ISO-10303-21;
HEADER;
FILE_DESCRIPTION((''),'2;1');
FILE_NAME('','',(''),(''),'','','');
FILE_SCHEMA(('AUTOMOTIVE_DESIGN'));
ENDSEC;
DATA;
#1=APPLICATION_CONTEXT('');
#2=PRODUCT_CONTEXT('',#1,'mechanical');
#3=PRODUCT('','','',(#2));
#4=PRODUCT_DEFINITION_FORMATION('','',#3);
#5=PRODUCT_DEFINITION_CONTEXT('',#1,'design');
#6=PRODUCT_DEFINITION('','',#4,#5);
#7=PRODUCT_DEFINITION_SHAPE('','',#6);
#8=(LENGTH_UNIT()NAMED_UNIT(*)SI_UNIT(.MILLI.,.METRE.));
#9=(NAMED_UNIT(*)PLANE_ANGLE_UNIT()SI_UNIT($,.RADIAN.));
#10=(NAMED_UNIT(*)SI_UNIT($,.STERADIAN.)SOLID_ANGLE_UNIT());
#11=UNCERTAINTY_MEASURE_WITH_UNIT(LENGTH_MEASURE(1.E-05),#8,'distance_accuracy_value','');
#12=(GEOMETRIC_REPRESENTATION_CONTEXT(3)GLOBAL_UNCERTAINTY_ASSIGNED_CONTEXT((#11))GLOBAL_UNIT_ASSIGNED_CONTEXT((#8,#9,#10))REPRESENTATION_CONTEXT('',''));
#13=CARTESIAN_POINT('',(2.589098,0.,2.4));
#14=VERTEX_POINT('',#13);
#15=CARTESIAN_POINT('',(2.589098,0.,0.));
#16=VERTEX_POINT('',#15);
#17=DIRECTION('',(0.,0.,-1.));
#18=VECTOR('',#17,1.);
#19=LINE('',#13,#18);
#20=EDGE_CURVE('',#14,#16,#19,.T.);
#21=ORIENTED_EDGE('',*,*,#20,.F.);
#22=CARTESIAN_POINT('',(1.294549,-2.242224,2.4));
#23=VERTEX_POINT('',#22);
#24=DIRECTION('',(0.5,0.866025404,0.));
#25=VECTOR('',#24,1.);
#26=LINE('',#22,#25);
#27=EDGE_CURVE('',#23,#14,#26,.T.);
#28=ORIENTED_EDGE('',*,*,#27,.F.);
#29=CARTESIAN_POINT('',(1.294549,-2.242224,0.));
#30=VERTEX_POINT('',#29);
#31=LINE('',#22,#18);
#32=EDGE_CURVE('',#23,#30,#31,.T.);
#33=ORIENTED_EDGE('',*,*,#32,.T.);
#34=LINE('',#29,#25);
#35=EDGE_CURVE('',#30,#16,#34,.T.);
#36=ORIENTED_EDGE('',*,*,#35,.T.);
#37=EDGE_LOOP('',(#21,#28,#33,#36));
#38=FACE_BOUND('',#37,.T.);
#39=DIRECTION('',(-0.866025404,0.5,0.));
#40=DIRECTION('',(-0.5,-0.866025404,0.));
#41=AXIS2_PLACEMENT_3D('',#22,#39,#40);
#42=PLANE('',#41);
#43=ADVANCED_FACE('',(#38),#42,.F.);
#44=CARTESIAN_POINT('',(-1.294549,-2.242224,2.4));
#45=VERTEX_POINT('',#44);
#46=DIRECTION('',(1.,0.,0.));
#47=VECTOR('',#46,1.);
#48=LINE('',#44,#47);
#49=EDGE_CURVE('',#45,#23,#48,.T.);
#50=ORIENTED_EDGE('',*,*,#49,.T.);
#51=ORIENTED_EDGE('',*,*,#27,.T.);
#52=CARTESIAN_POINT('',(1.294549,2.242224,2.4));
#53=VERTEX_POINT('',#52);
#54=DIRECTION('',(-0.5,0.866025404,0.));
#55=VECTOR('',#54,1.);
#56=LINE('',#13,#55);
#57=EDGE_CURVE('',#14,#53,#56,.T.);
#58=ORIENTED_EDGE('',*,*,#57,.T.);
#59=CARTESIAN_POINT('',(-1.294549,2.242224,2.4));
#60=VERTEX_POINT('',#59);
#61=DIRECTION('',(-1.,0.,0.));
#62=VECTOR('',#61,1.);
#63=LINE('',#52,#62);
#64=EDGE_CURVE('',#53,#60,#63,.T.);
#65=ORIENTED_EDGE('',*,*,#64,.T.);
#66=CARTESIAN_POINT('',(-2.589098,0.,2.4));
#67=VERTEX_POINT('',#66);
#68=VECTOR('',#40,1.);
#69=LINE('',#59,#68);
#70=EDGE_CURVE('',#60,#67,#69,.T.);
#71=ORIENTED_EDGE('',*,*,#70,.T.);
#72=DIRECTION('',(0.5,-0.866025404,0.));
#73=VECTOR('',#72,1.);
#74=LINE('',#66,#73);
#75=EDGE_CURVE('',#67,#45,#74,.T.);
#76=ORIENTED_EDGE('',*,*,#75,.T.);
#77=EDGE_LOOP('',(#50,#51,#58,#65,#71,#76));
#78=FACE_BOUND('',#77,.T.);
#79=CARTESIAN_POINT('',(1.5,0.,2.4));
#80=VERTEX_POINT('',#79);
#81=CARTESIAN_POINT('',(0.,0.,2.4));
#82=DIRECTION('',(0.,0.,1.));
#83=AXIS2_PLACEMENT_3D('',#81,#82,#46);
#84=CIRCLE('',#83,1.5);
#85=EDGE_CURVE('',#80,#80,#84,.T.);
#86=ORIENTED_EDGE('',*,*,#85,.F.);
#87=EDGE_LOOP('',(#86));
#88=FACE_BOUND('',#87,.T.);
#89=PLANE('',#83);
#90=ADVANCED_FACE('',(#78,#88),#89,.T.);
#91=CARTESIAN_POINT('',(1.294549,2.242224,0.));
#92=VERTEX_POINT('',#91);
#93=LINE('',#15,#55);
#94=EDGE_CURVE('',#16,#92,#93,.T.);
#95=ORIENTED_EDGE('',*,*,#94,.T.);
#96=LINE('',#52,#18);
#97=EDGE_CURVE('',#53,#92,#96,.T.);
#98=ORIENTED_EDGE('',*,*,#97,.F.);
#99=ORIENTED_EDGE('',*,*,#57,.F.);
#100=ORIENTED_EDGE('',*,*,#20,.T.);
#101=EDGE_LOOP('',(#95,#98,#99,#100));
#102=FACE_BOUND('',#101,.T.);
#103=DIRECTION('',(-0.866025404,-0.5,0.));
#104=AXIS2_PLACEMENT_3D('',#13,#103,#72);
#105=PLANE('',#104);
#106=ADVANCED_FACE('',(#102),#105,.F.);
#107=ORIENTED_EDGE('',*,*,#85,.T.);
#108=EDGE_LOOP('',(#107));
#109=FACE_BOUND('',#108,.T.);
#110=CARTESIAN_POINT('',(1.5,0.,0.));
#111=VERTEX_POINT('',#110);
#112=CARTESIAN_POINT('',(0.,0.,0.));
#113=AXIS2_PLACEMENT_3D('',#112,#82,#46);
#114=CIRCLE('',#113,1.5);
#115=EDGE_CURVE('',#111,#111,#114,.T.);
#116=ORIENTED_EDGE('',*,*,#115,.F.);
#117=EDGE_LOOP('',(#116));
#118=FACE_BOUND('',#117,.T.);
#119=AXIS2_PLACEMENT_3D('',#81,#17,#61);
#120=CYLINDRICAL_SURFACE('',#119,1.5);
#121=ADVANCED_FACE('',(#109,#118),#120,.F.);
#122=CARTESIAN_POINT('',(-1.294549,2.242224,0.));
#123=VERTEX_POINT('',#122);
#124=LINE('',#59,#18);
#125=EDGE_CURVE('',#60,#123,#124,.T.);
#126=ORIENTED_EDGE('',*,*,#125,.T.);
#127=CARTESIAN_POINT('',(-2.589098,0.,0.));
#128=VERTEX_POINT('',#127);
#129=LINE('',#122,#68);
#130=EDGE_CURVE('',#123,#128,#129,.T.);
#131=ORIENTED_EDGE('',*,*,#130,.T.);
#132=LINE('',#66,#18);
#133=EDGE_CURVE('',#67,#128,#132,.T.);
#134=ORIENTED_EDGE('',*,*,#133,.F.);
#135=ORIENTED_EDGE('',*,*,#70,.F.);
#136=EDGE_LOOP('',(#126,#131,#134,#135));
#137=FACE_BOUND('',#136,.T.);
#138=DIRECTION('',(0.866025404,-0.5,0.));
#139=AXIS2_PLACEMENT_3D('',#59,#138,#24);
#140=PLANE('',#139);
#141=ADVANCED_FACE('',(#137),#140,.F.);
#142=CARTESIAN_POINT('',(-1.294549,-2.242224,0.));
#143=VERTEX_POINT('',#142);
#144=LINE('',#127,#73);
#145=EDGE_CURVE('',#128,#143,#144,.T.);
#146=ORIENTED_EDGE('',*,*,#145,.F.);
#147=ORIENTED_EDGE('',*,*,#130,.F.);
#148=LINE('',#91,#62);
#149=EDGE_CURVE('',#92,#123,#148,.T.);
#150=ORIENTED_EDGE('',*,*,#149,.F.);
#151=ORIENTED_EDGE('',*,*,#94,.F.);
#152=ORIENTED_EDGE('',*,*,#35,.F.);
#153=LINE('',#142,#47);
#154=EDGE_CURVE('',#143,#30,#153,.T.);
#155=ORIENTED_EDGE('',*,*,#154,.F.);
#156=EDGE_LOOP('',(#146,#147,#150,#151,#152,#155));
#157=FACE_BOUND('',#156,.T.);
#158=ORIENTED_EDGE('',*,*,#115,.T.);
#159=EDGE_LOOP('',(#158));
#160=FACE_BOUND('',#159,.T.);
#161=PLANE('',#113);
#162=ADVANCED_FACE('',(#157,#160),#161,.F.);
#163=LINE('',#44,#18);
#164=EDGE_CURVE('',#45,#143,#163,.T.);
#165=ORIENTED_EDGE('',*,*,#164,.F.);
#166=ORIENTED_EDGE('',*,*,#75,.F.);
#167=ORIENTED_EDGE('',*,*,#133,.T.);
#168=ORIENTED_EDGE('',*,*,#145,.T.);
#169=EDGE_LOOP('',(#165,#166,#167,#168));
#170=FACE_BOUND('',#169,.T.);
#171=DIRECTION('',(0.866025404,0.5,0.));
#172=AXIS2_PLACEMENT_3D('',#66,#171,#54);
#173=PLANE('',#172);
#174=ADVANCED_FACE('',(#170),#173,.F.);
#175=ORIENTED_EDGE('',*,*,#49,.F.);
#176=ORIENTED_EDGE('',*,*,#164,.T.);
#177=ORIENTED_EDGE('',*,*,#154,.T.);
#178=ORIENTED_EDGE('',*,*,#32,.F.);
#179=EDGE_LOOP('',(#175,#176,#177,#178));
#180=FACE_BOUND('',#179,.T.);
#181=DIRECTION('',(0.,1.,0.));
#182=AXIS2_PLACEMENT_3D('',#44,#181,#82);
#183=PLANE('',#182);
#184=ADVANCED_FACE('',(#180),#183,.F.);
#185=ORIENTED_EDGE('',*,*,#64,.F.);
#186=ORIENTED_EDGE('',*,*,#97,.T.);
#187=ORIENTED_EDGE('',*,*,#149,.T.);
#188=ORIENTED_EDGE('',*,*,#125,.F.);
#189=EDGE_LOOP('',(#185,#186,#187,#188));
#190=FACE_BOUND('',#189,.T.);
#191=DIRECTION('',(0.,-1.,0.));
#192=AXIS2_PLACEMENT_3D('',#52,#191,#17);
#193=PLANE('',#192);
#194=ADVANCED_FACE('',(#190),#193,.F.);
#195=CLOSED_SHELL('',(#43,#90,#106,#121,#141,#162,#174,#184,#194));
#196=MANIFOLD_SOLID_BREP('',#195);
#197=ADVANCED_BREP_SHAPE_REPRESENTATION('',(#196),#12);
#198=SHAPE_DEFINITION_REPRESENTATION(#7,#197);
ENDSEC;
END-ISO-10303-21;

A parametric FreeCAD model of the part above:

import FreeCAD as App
import Part
import Sketcher
from FreeCAD import Vector
Q = App.Units.Quantity

doc = App.newDocument("Part")
params = doc.addObject("Spreadsheet::Sheet", "Params")
for row, (alias, value) in enumerate([
    ("sketch1_diameter", "3 mm"),
    ("pad1_length", "2.4 mm"),
], start=1):
    params.set(f"A{row}", alias)
    params.set(f"B{row}", "=" + value)
    params.setAlias(f"B{row}", alias)

body = doc.addObject("PartDesign::Body", "Body")

sketch1 = body.newObject("Sketcher::SketchObject", "Sketch")
sketch1.AttachmentSupport = (doc.getObject("XY_Plane"), [""])
sketch1.MapMode = "FlatFace"
sketch1.addGeometry(Part.LineSegment(Vector(2.6, 0, 0), Vector(1.3, 2.2, 0)), False)
sketch1.addGeometry(Part.LineSegment(Vector(1.3, 2.2, 0), Vector(-1.3, 2.2, 0)), False)
sketch1.addGeometry(Part.LineSegment(Vector(-1.3, 2.2, 0), Vector(-2.6, 0, 0)), False)
sketch1.addGeometry(Part.LineSegment(Vector(-2.6, 0, 0), Vector(-1.3, -2.2, 0)), False)
sketch1.addGeometry(Part.LineSegment(Vector(-1.3, -2.2, 0), Vector(1.3, -2.2, 0)), False)
sketch1.addGeometry(Part.LineSegment(Vector(1.3, -2.2, 0), Vector(2.6, 0, 0)), False)
sketch1.addGeometry(Part.Circle(Vector(0, 0, 0), Vector(0, 0, 1), 1.5), False)
sketch1.addConstraint(Sketcher.Constraint("Coincident", 0, 2, 1, 1))
sketch1.addConstraint(Sketcher.Constraint("Coincident", 1, 2, 2, 1))
sketch1.addConstraint(Sketcher.Constraint("Coincident", 2, 2, 3, 1))
sketch1.addConstraint(Sketcher.Constraint("Coincident", 3, 2, 4, 1))
sketch1.addConstraint(Sketcher.Constraint("Coincident", 4, 2, 5, 1))
sketch1.addConstraint(Sketcher.Constraint("Coincident", 5, 2, 0, 1))
sketch1.addConstraint(Sketcher.Constraint("Horizontal", 1))
sketch1.addConstraint(Sketcher.Constraint("Horizontal", 4))
sketch1.addConstraint(Sketcher.Constraint("Coincident", 6, 3, -1, 1))
sketch1.addConstraint(Sketcher.Constraint("Symmetric", 0, 2, 3, 2, -1, 1))
sketch1.addConstraint(Sketcher.Constraint("Symmetric", 2, 2, 5, 2, -1, 1))
sketch1.addConstraint(Sketcher.Constraint("PointOnObject", 2, 2, -1))
sketch1.addConstraint(Sketcher.Constraint("Parallel", 2, 5))
sketch1.addConstraint(Sketcher.Constraint("Vertical", 1, 2, 3, 2))
sketch1.addConstraint(Sketcher.Constraint("Diameter", 6, Q("3 mm")))
sketch1.addConstraint(Sketcher.Constraint("Angle", 0, Q("120 deg")))
sketch1.addConstraint(Sketcher.Constraint("DistanceX", 1, 2, 1, 1, Q("2.589098 mm")))
sketch1.addConstraint(Sketcher.Constraint("DistanceX", 2, 2, 1, 2, Q("1.294549 mm")))
sketch1.setExpression("Constraints[14]", "Params.sketch1_diameter")
pad1 = body.newObject("PartDesign::Pad", "Pad")
pad1.Profile = sketch1
pad1.setExpression("Length", "Params.pad1_length")

doc.recompute()
